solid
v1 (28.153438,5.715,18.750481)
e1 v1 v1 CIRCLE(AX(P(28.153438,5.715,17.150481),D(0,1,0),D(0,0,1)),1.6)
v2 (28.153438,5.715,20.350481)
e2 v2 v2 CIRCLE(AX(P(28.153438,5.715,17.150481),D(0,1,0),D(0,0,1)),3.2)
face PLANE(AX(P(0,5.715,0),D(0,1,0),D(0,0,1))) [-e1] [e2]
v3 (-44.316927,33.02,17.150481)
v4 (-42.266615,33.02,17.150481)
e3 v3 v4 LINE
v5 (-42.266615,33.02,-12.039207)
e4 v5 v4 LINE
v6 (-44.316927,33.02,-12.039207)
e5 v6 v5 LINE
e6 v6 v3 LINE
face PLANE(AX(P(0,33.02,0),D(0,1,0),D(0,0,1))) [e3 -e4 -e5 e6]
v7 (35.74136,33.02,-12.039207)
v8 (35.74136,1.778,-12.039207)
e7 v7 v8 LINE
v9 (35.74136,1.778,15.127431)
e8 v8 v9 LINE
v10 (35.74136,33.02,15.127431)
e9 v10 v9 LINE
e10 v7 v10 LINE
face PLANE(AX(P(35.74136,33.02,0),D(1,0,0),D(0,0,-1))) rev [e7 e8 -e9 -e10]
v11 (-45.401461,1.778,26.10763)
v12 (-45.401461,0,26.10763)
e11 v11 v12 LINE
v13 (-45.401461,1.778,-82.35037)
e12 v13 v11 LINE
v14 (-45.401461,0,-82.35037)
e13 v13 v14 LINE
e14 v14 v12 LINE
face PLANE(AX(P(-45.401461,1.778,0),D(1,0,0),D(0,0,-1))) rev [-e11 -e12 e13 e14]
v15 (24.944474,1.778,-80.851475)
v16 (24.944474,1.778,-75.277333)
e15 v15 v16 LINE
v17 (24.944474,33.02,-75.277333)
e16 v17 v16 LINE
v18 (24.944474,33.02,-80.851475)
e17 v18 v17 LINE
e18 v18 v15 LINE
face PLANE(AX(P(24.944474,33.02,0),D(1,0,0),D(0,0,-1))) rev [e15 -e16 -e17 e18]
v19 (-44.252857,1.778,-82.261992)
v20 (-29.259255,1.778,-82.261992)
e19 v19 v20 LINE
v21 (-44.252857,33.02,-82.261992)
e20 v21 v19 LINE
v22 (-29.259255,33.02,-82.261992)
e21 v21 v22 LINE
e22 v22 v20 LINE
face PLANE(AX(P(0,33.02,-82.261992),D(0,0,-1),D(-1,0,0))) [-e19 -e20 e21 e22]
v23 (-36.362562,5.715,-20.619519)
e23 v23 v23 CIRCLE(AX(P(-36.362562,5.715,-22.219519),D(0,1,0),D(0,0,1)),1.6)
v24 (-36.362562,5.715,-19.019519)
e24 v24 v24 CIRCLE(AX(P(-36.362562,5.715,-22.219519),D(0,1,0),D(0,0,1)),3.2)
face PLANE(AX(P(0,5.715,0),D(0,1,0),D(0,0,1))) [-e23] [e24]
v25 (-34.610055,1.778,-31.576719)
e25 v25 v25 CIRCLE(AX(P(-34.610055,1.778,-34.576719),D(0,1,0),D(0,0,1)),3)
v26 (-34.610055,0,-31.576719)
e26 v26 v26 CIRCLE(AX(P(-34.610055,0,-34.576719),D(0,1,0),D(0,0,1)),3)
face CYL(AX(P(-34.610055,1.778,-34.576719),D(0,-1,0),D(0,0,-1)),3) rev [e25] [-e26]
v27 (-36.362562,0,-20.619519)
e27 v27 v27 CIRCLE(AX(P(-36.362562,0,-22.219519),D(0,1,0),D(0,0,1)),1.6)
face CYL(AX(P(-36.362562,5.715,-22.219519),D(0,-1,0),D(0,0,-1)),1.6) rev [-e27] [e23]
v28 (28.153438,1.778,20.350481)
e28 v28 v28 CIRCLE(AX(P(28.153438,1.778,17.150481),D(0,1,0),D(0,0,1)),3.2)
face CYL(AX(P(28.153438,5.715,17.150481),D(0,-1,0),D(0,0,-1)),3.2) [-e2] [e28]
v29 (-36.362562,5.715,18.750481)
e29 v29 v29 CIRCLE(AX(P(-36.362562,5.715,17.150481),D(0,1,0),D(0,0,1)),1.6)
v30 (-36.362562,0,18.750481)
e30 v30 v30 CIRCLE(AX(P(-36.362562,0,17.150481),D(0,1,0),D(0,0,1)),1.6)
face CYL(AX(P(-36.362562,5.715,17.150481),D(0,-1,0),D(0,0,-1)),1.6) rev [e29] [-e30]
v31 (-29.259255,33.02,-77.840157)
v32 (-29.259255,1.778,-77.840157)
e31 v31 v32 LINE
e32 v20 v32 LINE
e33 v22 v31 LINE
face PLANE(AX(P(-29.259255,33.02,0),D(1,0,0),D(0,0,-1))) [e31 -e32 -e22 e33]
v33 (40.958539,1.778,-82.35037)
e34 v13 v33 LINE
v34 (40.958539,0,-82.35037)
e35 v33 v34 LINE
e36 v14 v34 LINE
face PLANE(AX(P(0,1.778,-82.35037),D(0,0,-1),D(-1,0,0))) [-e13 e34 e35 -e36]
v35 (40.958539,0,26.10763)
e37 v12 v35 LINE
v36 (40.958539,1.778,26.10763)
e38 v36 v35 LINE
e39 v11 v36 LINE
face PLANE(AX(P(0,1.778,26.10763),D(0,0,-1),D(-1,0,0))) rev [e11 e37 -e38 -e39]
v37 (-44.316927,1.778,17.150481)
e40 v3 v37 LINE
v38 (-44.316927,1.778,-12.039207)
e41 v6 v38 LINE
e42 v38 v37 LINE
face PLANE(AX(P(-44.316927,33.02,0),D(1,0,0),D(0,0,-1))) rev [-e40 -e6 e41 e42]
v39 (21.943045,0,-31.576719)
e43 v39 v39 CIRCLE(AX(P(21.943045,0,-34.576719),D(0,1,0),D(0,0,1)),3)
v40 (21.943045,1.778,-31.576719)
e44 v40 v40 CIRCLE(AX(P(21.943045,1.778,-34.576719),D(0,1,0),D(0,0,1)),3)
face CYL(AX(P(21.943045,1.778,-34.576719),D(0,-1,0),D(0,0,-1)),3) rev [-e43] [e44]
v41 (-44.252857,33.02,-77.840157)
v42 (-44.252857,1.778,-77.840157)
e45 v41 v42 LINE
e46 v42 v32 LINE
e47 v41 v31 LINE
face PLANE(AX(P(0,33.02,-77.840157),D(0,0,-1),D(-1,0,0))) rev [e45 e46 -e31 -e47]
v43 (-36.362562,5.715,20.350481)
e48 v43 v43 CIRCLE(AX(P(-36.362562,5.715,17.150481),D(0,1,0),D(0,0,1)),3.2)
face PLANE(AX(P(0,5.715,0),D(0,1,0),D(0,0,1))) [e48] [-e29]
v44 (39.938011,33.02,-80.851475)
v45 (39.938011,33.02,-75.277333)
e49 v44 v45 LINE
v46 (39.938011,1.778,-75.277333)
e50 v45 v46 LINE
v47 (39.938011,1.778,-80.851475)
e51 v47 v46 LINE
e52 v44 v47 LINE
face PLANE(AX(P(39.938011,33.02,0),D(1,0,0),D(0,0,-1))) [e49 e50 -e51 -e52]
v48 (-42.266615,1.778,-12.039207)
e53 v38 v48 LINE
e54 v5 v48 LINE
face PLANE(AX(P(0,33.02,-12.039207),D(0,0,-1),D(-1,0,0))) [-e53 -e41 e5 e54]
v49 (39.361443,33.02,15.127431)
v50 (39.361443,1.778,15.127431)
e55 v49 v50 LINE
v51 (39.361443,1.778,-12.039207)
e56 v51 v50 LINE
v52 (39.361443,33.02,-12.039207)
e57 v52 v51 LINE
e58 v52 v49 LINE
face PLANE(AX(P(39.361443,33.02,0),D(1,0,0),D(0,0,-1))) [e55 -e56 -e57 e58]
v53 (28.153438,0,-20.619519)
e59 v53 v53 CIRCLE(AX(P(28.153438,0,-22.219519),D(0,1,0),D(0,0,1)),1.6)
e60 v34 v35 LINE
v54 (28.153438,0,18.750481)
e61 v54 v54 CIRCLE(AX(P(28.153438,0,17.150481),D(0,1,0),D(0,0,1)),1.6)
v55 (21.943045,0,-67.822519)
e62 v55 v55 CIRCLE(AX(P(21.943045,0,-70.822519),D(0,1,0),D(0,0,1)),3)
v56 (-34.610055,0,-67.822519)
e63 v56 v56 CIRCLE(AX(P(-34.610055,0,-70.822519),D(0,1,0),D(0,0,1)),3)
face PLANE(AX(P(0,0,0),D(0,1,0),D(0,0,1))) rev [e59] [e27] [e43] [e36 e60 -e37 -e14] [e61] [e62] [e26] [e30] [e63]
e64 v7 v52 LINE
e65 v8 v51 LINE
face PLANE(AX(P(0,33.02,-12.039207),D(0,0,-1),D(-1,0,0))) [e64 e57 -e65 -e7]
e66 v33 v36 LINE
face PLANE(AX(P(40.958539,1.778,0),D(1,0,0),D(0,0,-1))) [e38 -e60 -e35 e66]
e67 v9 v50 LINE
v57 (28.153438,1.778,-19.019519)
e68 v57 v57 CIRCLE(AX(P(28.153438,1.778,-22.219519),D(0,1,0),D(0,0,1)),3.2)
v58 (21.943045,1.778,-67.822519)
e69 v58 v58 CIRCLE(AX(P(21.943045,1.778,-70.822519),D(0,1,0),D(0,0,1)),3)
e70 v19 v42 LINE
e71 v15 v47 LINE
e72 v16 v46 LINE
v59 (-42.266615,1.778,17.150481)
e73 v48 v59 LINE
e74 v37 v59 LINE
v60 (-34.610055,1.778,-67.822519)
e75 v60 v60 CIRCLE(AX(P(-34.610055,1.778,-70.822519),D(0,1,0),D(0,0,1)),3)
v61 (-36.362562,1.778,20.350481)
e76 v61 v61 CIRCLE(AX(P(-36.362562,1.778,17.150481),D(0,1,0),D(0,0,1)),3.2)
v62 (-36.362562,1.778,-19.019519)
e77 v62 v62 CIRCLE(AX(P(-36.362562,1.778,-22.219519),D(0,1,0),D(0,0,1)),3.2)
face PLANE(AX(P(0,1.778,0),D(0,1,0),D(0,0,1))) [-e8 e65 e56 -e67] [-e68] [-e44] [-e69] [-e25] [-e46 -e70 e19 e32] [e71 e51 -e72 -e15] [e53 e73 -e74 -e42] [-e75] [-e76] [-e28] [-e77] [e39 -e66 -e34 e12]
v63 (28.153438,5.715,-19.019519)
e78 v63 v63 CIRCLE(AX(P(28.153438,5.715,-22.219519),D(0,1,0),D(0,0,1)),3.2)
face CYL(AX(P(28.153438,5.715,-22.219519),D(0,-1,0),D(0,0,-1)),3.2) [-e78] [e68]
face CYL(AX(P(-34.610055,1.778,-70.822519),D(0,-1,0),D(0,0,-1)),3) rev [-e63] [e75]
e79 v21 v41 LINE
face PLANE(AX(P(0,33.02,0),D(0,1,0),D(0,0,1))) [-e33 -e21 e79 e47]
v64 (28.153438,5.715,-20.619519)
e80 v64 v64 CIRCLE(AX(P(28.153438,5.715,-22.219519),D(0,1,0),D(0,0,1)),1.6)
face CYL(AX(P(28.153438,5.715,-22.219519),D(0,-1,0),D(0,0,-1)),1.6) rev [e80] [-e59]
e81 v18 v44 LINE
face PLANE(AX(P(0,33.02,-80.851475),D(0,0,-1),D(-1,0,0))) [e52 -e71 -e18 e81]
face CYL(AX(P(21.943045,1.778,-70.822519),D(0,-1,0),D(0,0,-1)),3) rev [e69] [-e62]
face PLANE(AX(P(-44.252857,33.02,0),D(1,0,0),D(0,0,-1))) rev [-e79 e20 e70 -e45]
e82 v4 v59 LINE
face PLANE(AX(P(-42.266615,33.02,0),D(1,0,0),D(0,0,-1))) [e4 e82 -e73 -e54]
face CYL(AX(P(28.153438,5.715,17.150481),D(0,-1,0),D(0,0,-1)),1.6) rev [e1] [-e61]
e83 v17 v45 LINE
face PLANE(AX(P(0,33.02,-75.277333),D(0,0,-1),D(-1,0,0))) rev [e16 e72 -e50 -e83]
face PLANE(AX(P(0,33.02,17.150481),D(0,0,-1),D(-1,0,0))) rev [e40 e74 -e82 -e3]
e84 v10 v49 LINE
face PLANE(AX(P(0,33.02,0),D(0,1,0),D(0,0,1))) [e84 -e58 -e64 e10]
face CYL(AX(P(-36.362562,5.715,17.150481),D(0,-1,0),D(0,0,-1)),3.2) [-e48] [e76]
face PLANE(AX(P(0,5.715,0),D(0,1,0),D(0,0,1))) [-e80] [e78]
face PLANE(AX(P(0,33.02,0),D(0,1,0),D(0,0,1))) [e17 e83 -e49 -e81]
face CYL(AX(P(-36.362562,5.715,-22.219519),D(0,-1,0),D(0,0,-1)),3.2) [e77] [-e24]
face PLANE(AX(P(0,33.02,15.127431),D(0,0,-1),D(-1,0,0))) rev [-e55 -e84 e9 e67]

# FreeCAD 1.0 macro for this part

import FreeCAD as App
import Part
import Sketcher
from FreeCAD import Vector
Q = App.Units.Quantity

doc = App.newDocument("Part")
params = doc.addObject("Spreadsheet::Sheet", "Params")
for row, (alias, value) in enumerate([
    ("sketch1_width", "3.4 in"),
    ("sketch1_height", "4.27 in"),
    ("pad1_length", "0.07 in"),
    ("pad2_length", "0.225 in"),
    ("pad3_length", "1.3 in"),
], start=1):
    params.set(f"A{row}", alias)
    params.set(f"B{row}", "=" + value)
    params.setAlias(f"B{row}", alias)

body = doc.addObject("PartDesign::Body", "Body")

sketch1 = body.newObject("Sketcher::SketchObject", "Sketch")
sketch1.AttachmentSupport = (doc.getObject("XZ_Plane"), [""])
sketch1.MapMode = "FlatFace"
sketch1.addGeometry([
    Part.LineSegment(Vector(-45.4, -82.4, 0), Vector(-45.4, 26.1, 0)),
    Part.LineSegment(Vector(-45.4, 26.1, 0), Vector(41, 26.1, 0)),
    Part.LineSegment(Vector(41, 26.1, 0), Vector(41, -82.4, 0)),
    Part.LineSegment(Vector(41, -82.4, 0), Vector(-45.4, -82.4, 0)),
    Part.Circle(Vector(-36.4, 17.2, 0), Vector(0, 0, 1), 3.2),
    Part.LineSegment(Vector(-42.3, 17.2, 0), Vector(-44.3, 17.2, 0)),
    Part.LineSegment(Vector(-44.3, 17.2, 0), Vector(-44.3, -12, 0)),
    Part.LineSegment(Vector(-44.3, -12, 0), Vector(-42.3, -12, 0)),
    Part.LineSegment(Vector(-42.3, -12, 0), Vector(-42.3, 17.2, 0)),
    Part.Circle(Vector(-36.4, -22.2, 0), Vector(0, 0, 1), 3.2),
    Part.Circle(Vector(28.2, 17.2, 0), Vector(0, 0, 1), 3.2),
    Part.LineSegment(Vector(39.4, 15.1, 0), Vector(35.7, 15.1, 0)),
    Part.LineSegment(Vector(35.7, 15.1, 0), Vector(35.7, -12, 0)),
    Part.LineSegment(Vector(35.7, -12, 0), Vector(39.4, -12, 0)),
    Part.LineSegment(Vector(39.4, -12, 0), Vector(39.4, 15.1, 0)),
    Part.Circle(Vector(28.2, -22.2, 0), Vector(0, 0, 1), 3.2),
    Part.Circle(Vector(-34.6, -34.6, 0), Vector(0, 0, 1), 3),
    Part.Circle(Vector(-34.6, -70.8, 0), Vector(0, 0, 1), 3),
    Part.LineSegment(Vector(-29.3, -77.8, 0), Vector(-44.3, -77.8, 0)),
    Part.LineSegment(Vector(-44.3, -77.8, 0), Vector(-44.3, -82.3, 0)),
    Part.LineSegment(Vector(-44.3, -82.3, 0), Vector(-29.3, -82.3, 0)),
    Part.LineSegment(Vector(-29.3, -82.3, 0), Vector(-29.3, -77.8, 0)),
    Part.Circle(Vector(21.9, -34.6, 0), Vector(0, 0, 1), 3),
    Part.Circle(Vector(21.9, -70.8, 0), Vector(0, 0, 1), 3),
    Part.LineSegment(Vector(39.9, -75.3, 0), Vector(24.9, -75.3, 0)),
    Part.LineSegment(Vector(24.9, -75.3, 0), Vector(24.9, -80.9, 0)),
    Part.LineSegment(Vector(24.9, -80.9, 0), Vector(39.9, -80.9, 0)),
    Part.LineSegment(Vector(39.9, -80.9, 0), Vector(39.9, -75.3, 0)),
], False)
sketch1.addConstraint([
    Sketcher.Constraint("Coincident", 0, 2, 1, 1),
    Sketcher.Constraint("Coincident", 1, 2, 2, 1),
    Sketcher.Constraint("Coincident", 2, 2, 3, 1),
    Sketcher.Constraint("Coincident", 3, 2, 0, 1),
    Sketcher.Constraint("Coincident", 5, 2, 6, 1),
    Sketcher.Constraint("Coincident", 6, 2, 7, 1),
    Sketcher.Constraint("Coincident", 7, 2, 8, 1),
    Sketcher.Constraint("Coincident", 8, 2, 5, 1),
    Sketcher.Constraint("Coincident", 11, 2, 12, 1),
    Sketcher.Constraint("Coincident", 12, 2, 13, 1),
    Sketcher.Constraint("Coincident", 13, 2, 14, 1),
    Sketcher.Constraint("Coincident", 14, 2, 11, 1),
    Sketcher.Constraint("Coincident", 18, 2, 19, 1),
    Sketcher.Constraint("Coincident", 19, 2, 20, 1),
    Sketcher.Constraint("Coincident", 20, 2, 21, 1),
    Sketcher.Constraint("Coincident", 21, 2, 18, 1),
    Sketcher.Constraint("Coincident", 24, 2, 25, 1),
    Sketcher.Constraint("Coincident", 25, 2, 26, 1),
    Sketcher.Constraint("Coincident", 26, 2, 27, 1),
    Sketcher.Constraint("Coincident", 27, 2, 24, 1),
    Sketcher.Constraint("Vertical", 0),
    Sketcher.Constraint("Horizontal", 1),
    Sketcher.Constraint("Vertical", 2),
    Sketcher.Constraint("Horizontal", 3),
    Sketcher.Constraint("Horizontal", 5),
    Sketcher.Constraint("Vertical", 6),
    Sketcher.Constraint("Horizontal", 7),
    Sketcher.Constraint("Vertical", 8),
    Sketcher.Constraint("Horizontal", 11),
    Sketcher.Constraint("Vertical", 12),
    Sketcher.Constraint("Horizontal", 13),
    Sketcher.Constraint("Vertical", 14),
    Sketcher.Constraint("Horizontal", 18),
    Sketcher.Constraint("Vertical", 19),
    Sketcher.Constraint("Horizontal", 20),
    Sketcher.Constraint("Vertical", 21),
    Sketcher.Constraint("Horizontal", 24),
    Sketcher.Constraint("Vertical", 25),
    Sketcher.Constraint("Horizontal", 26),
    Sketcher.Constraint("Vertical", 27),
    Sketcher.Constraint("Equal", 4, 9),
    Sketcher.Constraint("Equal", 9, 10),
    Sketcher.Constraint("Equal", 10, 15),
    Sketcher.Constraint("Equal", 16, 17),
    Sketcher.Constraint("Equal", 17, 22),
    Sketcher.Constraint("Equal", 22, 23),
    Sketcher.Constraint("Horizontal", 4, 3, 10, 3),
    Sketcher.Constraint("Horizontal", 9, 3, 15, 3),
    Sketcher.Constraint("Horizontal", 16, 3, 22, 3),
    Sketcher.Constraint("Horizontal", 17, 3, 23, 3),
    Sketcher.Constraint("Horizontal", 10, 3, 5, 2),
    Sketcher.Constraint("Horizontal", 7, 2, 12, 2),
    Sketcher.Constraint("Vertical", 4, 3, 9, 3),
    Sketcher.Constraint("Vertical", 10, 3, 15, 3),
    Sketcher.Constraint("Vertical", 16, 3, 17, 3),
    Sketcher.Constraint("Vertical", 22, 3, 23, 3),
    Sketcher.Constraint("DistanceX", 1, 1, 1, 2, Q("3.4 in")),
    Sketcher.Constraint("DistanceY", 0, 1, 0, 2, Q("4.27 in")),
    Sketcher.Constraint("Diameter", 4, Q("6.4 mm")),
    Sketcher.Constraint("Diameter", 16, Q("6 mm")),
    Sketcher.Constraint("DistanceY", 9, 3, 4, 3, Q("1.55 in")),
    Sketcher.Constraint("DistanceX", 4, 3, 10, 3, Q("2.54 in")),
    Sketcher.Constraint("DistanceY", 17, 3, 16, 3, Q("1.427 in")),
    Sketcher.Constraint("DistanceX", 18, 2, 18, 1, Q("14.993602 mm")),
    Sketcher.Constraint("DistanceX", 16, 3, 22, 3, Q("2.2265 in")),
    Sketcher.Constraint("DistanceY", 16, 3, 9, 3, Q("12.3572 mm")),
    Sketcher.Constraint("DistanceX", 0, 2, 4, 3, Q("9.038899 mm")),
    Sketcher.Constraint("DistanceY", 11, 2, 1, 2, Q("10.980199 mm")),
    Sketcher.Constraint("DistanceX", 22, 3, 13, 2, Q("17.418398 mm")),
    Sketcher.Constraint("DistanceX", 18, 2, 17, 3, Q("9.642801 mm")),
    Sketcher.Constraint("DistanceX", 5, 2, 5, 1, Q("2.050312 mm")),
    Sketcher.Constraint("DistanceX", 11, 2, 11, 1, Q("3.620083 mm")),
    Sketcher.Constraint("DistanceX", 24, 2, 24, 1, Q("14.993537 mm")),
    Sketcher.Constraint("DistanceY", 6, 2, 6, 1, Q("29.189688 mm")),
    Sketcher.Constraint("DistanceY", 12, 2, 12, 1, Q("27.166638 mm")),
    Sketcher.Constraint("DistanceY", 19, 2, 19, 1, Q("4.421835 mm")),
    Sketcher.Constraint("DistanceY", 25, 2, 25, 1, Q("5.574142 mm")),
    Sketcher.Constraint("DistanceX", 4, 3, -1, 1, Q("36.362562 mm")),
    Sketcher.Constraint("DistanceY", -1, 1, 4, 3, Q("17.150481 mm")),
    Sketcher.Constraint("DistanceX", -1, 1, 11, 2, Q("35.74136 mm")),
    Sketcher.Constraint("DistanceY", 19, 2, -1, 1, Q("82.261992 mm")),
    Sketcher.Constraint("DistanceX", -1, 1, 26, 2, Q("39.938011 mm")),
    Sketcher.Constraint("DistanceX", 7, 2, 16, 3, Q("7.65656 mm")),
    Sketcher.Constraint("DistanceY", 24, 2, -1, 1, Q("75.277333 mm")),
])
sketch1.setExpression("Constraints[56]", "Params.sketch1_width")
sketch1.setExpression("Constraints[57]", "Params.sketch1_height")
pad1 = body.newObject("PartDesign::Pad", "Pad")
pad1.Profile = sketch1
pad1.setExpression("Length", "Params.pad1_length")
pad1.Reversed = True

sketch2 = body.newObject("Sketcher::SketchObject", "Sketch001")
sketch2.AttachmentSupport = (doc.getObject("XZ_Plane"), [""])
sketch2.MapMode = "FlatFace"
sketch2.addGeometry([
    Part.Circle(Vector(-36.4, 17.2, 0), Vector(0, 0, 1), 3.2),
    Part.Circle(Vector(-36.4, 17.2, 0), Vector(0, 0, 1), 1.6),
    Part.Circle(Vector(28.2, 17.2, 0), Vector(0, 0, 1), 3.2),
    Part.Circle(Vector(28.2, 17.2, 0), Vector(0, 0, 1), 1.6),
    Part.Circle(Vector(28.2, -22.2, 0), Vector(0, 0, 1), 3.2),
    Part.Circle(Vector(28.2, -22.2, 0), Vector(0, 0, 1), 1.6),
    Part.Circle(Vector(-36.4, -22.2, 0), Vector(0, 0, 1), 3.2),
    Part.Circle(Vector(-36.4, -22.2, 0), Vector(0, 0, 1), 1.6),
], False)
sketch2.addConstraint([
    Sketcher.Constraint("Coincident", 1, 3, 0, 3),
    Sketcher.Constraint("Coincident", 3, 3, 2, 3),
    Sketcher.Constraint("Coincident", 5, 3, 4, 3),
    Sketcher.Constraint("Coincident", 7, 3, 6, 3),
    Sketcher.Constraint("Equal", 0, 2),
    Sketcher.Constraint("Equal", 1, 3),
    Sketcher.Constraint("Equal", 2, 4),
    Sketcher.Constraint("Equal", 3, 5),
    Sketcher.Constraint("Equal", 4, 6),
    Sketcher.Constraint("Equal", 5, 7),
    Sketcher.Constraint("Horizontal", 1, 3, 2, 3),
    Sketcher.Constraint("Horizontal", 5, 3, 6, 3),
    Sketcher.Constraint("Vertical", 3, 3, 4, 3),
    Sketcher.Constraint("Vertical", 1, 3, 6, 3),
    Sketcher.Constraint("Diameter", 0, Q("6.4 mm")),
    Sketcher.Constraint("Diameter", 1, Q("3.2 mm")),
    Sketcher.Constraint("DistanceX", 0, 3, 2, 3, Q("2.54 in")),
    Sketcher.Constraint("DistanceY", 4, 3, 2, 3, Q("1.55 in")),
    Sketcher.Constraint("DistanceX", 0, 3, -1, 1, Q("36.362562 mm")),
    Sketcher.Constraint("DistanceY", -1, 1, 0, 3, Q("17.150481 mm")),
])
pad2 = body.newObject("PartDesign::Pad", "Pad001")
pad2.Profile = sketch2
pad2.setExpression("Length", "Params.pad2_length")
pad2.Reversed = True

sketch3 = body.newObject("Sketcher::SketchObject", "Sketch002")
sketch3.AttachmentSupport = (doc.getObject("XZ_Plane"), [""])
sketch3.MapMode = "FlatFace"
sketch3.addGeometry([
    Part.LineSegment(Vector(-44.3, -82.3, 0), Vector(-44.3, -77.8, 0)),
    Part.LineSegment(Vector(-44.3, -77.8, 0), Vector(-29.3, -77.8, 0)),
    Part.LineSegment(Vector(-29.3, -77.8, 0), Vector(-29.3, -82.3, 0)),
    Part.LineSegment(Vector(-29.3, -82.3, 0), Vector(-44.3, -82.3, 0)),
    Part.LineSegment(Vector(24.9, -80.9, 0), Vector(24.9, -75.3, 0)),
    Part.LineSegment(Vector(24.9, -75.3, 0), Vector(39.9, -75.3, 0)),
    Part.LineSegment(Vector(39.9, -75.3, 0), Vector(39.9, -80.9, 0)),
    Part.LineSegment(Vector(39.9, -80.9, 0), Vector(24.9, -80.9, 0)),
    Part.LineSegment(Vector(35.7, -12, 0), Vector(35.7, 15.1, 0)),
    Part.LineSegment(Vector(35.7, 15.1, 0), Vector(39.4, 15.1, 0)),
    Part.LineSegment(Vector(39.4, 15.1, 0), Vector(39.4, -12, 0)),
    Part.LineSegment(Vector(39.4, -12, 0), Vector(35.7, -12, 0)),
    Part.LineSegment(Vector(-44.3, -12, 0), Vector(-44.3, 17.2, 0)),
    Part.LineSegment(Vector(-44.3, 17.2, 0), Vector(-42.3, 17.2, 0)),
    Part.LineSegment(Vector(-42.3, 17.2, 0), Vector(-42.3, -12, 0)),
    Part.LineSegment(Vector(-42.3, -12, 0), Vector(-44.3, -12, 0)),
], False)
sketch3.addConstraint([
    Sketcher.Constraint("Coincident", 0, 2, 1, 1),
    Sketcher.Constraint("Coincident", 1, 2, 2, 1),
    Sketcher.Constraint("Coincident", 2, 2, 3, 1),
    Sketcher.Constraint("Coincident", 3, 2, 0, 1),
    Sketcher.Constraint("Coincident", 4, 2, 5, 1),
    Sketcher.Constraint("Coincident", 5, 2, 6, 1),
    Sketcher.Constraint("Coincident", 6, 2, 7, 1),
    Sketcher.Constraint("Coincident", 7, 2, 4, 1),
    Sketcher.Constraint("Coincident", 8, 2, 9, 1),
    Sketcher.Constraint("Coincident", 9, 2, 10, 1),
    Sketcher.Constraint("Coincident", 10, 2, 11, 1),
    Sketcher.Constraint("Coincident", 11, 2, 8, 1),
    Sketcher.Constraint("Coincident", 12, 2, 13, 1),
    Sketcher.Constraint("Coincident", 13, 2, 14, 1),
    Sketcher.Constraint("Coincident", 14, 2, 15, 1),
    Sketcher.Constraint("Coincident", 15, 2, 12, 1),
    Sketcher.Constraint("Vertical", 0),
    Sketcher.Constraint("Horizontal", 1),
    Sketcher.Constraint("Vertical", 2),
    Sketcher.Constraint("Horizontal", 3),
    Sketcher.Constraint("Vertical", 4),
    Sketcher.Constraint("Horizontal", 5),
    Sketcher.Constraint("Vertical", 6),
    Sketcher.Constraint("Horizontal", 7),
    Sketcher.Constraint("Vertical", 8),
    Sketcher.Constraint("Horizontal", 9),
    Sketcher.Constraint("Vertical", 10),
    Sketcher.Constraint("Horizontal", 11),
    Sketcher.Constraint("Vertical", 12),
    Sketcher.Constraint("Horizontal", 13),
    Sketcher.Constraint("Vertical", 14),
    Sketcher.Constraint("Horizontal", 15),
    Sketcher.Constraint("Horizontal", 11, 2, 14, 2),
    Sketcher.Constraint("DistanceX", 1, 1, 1, 2, Q("14.993602 mm")),
    Sketcher.Constraint("DistanceX", 5, 1, 5, 2, Q("14.993537 mm")),
    Sketcher.Constraint("DistanceX", 9, 1, 9, 2, Q("3.620083 mm")),
    Sketcher.Constraint("DistanceX", 13, 1, 13, 2, Q("2.050312 mm")),
    Sketcher.Constraint("DistanceY", 0, 1, 0, 2, Q("4.421835 mm")),
    Sketcher.Constraint("DistanceY", 4, 1, 4, 2, Q("5.574142 mm")),
    Sketcher.Constraint("DistanceY", 8, 1, 8, 2, Q("27.166638 mm")),
    Sketcher.Constraint("DistanceY", 12, 1, 12, 2, Q("29.189688 mm")),
    Sketcher.Constraint("DistanceY", 2, 2, -1, 1, Q("82.261992 mm")),
    Sketcher.Constraint("DistanceX", -1, 1, 5, 2, Q("39.938011 mm")),
    Sketcher.Constraint("DistanceX", -1, 1, 8, 2, Q("35.74136 mm")),
    Sketcher.Constraint("DistanceY", -1, 1, 8, 2, Q("15.127431 mm")),
    Sketcher.Constraint("DistanceX", 1, 2, 4, 2, Q("54.203729 mm")),
    Sketcher.Constraint("DistanceY", 2, 2, 4, 2, Q("6.984659 mm")),
    Sketcher.Constraint("DistanceX", 12, 2, 9, 2, Q("83.67837 mm")),
])
pad3 = body.newObject("PartDesign::Pad", "Pad002")
pad3.Profile = sketch3
pad3.setExpression("Length", "Params.pad3_length")
pad3.Reversed = True

doc.recompute()
